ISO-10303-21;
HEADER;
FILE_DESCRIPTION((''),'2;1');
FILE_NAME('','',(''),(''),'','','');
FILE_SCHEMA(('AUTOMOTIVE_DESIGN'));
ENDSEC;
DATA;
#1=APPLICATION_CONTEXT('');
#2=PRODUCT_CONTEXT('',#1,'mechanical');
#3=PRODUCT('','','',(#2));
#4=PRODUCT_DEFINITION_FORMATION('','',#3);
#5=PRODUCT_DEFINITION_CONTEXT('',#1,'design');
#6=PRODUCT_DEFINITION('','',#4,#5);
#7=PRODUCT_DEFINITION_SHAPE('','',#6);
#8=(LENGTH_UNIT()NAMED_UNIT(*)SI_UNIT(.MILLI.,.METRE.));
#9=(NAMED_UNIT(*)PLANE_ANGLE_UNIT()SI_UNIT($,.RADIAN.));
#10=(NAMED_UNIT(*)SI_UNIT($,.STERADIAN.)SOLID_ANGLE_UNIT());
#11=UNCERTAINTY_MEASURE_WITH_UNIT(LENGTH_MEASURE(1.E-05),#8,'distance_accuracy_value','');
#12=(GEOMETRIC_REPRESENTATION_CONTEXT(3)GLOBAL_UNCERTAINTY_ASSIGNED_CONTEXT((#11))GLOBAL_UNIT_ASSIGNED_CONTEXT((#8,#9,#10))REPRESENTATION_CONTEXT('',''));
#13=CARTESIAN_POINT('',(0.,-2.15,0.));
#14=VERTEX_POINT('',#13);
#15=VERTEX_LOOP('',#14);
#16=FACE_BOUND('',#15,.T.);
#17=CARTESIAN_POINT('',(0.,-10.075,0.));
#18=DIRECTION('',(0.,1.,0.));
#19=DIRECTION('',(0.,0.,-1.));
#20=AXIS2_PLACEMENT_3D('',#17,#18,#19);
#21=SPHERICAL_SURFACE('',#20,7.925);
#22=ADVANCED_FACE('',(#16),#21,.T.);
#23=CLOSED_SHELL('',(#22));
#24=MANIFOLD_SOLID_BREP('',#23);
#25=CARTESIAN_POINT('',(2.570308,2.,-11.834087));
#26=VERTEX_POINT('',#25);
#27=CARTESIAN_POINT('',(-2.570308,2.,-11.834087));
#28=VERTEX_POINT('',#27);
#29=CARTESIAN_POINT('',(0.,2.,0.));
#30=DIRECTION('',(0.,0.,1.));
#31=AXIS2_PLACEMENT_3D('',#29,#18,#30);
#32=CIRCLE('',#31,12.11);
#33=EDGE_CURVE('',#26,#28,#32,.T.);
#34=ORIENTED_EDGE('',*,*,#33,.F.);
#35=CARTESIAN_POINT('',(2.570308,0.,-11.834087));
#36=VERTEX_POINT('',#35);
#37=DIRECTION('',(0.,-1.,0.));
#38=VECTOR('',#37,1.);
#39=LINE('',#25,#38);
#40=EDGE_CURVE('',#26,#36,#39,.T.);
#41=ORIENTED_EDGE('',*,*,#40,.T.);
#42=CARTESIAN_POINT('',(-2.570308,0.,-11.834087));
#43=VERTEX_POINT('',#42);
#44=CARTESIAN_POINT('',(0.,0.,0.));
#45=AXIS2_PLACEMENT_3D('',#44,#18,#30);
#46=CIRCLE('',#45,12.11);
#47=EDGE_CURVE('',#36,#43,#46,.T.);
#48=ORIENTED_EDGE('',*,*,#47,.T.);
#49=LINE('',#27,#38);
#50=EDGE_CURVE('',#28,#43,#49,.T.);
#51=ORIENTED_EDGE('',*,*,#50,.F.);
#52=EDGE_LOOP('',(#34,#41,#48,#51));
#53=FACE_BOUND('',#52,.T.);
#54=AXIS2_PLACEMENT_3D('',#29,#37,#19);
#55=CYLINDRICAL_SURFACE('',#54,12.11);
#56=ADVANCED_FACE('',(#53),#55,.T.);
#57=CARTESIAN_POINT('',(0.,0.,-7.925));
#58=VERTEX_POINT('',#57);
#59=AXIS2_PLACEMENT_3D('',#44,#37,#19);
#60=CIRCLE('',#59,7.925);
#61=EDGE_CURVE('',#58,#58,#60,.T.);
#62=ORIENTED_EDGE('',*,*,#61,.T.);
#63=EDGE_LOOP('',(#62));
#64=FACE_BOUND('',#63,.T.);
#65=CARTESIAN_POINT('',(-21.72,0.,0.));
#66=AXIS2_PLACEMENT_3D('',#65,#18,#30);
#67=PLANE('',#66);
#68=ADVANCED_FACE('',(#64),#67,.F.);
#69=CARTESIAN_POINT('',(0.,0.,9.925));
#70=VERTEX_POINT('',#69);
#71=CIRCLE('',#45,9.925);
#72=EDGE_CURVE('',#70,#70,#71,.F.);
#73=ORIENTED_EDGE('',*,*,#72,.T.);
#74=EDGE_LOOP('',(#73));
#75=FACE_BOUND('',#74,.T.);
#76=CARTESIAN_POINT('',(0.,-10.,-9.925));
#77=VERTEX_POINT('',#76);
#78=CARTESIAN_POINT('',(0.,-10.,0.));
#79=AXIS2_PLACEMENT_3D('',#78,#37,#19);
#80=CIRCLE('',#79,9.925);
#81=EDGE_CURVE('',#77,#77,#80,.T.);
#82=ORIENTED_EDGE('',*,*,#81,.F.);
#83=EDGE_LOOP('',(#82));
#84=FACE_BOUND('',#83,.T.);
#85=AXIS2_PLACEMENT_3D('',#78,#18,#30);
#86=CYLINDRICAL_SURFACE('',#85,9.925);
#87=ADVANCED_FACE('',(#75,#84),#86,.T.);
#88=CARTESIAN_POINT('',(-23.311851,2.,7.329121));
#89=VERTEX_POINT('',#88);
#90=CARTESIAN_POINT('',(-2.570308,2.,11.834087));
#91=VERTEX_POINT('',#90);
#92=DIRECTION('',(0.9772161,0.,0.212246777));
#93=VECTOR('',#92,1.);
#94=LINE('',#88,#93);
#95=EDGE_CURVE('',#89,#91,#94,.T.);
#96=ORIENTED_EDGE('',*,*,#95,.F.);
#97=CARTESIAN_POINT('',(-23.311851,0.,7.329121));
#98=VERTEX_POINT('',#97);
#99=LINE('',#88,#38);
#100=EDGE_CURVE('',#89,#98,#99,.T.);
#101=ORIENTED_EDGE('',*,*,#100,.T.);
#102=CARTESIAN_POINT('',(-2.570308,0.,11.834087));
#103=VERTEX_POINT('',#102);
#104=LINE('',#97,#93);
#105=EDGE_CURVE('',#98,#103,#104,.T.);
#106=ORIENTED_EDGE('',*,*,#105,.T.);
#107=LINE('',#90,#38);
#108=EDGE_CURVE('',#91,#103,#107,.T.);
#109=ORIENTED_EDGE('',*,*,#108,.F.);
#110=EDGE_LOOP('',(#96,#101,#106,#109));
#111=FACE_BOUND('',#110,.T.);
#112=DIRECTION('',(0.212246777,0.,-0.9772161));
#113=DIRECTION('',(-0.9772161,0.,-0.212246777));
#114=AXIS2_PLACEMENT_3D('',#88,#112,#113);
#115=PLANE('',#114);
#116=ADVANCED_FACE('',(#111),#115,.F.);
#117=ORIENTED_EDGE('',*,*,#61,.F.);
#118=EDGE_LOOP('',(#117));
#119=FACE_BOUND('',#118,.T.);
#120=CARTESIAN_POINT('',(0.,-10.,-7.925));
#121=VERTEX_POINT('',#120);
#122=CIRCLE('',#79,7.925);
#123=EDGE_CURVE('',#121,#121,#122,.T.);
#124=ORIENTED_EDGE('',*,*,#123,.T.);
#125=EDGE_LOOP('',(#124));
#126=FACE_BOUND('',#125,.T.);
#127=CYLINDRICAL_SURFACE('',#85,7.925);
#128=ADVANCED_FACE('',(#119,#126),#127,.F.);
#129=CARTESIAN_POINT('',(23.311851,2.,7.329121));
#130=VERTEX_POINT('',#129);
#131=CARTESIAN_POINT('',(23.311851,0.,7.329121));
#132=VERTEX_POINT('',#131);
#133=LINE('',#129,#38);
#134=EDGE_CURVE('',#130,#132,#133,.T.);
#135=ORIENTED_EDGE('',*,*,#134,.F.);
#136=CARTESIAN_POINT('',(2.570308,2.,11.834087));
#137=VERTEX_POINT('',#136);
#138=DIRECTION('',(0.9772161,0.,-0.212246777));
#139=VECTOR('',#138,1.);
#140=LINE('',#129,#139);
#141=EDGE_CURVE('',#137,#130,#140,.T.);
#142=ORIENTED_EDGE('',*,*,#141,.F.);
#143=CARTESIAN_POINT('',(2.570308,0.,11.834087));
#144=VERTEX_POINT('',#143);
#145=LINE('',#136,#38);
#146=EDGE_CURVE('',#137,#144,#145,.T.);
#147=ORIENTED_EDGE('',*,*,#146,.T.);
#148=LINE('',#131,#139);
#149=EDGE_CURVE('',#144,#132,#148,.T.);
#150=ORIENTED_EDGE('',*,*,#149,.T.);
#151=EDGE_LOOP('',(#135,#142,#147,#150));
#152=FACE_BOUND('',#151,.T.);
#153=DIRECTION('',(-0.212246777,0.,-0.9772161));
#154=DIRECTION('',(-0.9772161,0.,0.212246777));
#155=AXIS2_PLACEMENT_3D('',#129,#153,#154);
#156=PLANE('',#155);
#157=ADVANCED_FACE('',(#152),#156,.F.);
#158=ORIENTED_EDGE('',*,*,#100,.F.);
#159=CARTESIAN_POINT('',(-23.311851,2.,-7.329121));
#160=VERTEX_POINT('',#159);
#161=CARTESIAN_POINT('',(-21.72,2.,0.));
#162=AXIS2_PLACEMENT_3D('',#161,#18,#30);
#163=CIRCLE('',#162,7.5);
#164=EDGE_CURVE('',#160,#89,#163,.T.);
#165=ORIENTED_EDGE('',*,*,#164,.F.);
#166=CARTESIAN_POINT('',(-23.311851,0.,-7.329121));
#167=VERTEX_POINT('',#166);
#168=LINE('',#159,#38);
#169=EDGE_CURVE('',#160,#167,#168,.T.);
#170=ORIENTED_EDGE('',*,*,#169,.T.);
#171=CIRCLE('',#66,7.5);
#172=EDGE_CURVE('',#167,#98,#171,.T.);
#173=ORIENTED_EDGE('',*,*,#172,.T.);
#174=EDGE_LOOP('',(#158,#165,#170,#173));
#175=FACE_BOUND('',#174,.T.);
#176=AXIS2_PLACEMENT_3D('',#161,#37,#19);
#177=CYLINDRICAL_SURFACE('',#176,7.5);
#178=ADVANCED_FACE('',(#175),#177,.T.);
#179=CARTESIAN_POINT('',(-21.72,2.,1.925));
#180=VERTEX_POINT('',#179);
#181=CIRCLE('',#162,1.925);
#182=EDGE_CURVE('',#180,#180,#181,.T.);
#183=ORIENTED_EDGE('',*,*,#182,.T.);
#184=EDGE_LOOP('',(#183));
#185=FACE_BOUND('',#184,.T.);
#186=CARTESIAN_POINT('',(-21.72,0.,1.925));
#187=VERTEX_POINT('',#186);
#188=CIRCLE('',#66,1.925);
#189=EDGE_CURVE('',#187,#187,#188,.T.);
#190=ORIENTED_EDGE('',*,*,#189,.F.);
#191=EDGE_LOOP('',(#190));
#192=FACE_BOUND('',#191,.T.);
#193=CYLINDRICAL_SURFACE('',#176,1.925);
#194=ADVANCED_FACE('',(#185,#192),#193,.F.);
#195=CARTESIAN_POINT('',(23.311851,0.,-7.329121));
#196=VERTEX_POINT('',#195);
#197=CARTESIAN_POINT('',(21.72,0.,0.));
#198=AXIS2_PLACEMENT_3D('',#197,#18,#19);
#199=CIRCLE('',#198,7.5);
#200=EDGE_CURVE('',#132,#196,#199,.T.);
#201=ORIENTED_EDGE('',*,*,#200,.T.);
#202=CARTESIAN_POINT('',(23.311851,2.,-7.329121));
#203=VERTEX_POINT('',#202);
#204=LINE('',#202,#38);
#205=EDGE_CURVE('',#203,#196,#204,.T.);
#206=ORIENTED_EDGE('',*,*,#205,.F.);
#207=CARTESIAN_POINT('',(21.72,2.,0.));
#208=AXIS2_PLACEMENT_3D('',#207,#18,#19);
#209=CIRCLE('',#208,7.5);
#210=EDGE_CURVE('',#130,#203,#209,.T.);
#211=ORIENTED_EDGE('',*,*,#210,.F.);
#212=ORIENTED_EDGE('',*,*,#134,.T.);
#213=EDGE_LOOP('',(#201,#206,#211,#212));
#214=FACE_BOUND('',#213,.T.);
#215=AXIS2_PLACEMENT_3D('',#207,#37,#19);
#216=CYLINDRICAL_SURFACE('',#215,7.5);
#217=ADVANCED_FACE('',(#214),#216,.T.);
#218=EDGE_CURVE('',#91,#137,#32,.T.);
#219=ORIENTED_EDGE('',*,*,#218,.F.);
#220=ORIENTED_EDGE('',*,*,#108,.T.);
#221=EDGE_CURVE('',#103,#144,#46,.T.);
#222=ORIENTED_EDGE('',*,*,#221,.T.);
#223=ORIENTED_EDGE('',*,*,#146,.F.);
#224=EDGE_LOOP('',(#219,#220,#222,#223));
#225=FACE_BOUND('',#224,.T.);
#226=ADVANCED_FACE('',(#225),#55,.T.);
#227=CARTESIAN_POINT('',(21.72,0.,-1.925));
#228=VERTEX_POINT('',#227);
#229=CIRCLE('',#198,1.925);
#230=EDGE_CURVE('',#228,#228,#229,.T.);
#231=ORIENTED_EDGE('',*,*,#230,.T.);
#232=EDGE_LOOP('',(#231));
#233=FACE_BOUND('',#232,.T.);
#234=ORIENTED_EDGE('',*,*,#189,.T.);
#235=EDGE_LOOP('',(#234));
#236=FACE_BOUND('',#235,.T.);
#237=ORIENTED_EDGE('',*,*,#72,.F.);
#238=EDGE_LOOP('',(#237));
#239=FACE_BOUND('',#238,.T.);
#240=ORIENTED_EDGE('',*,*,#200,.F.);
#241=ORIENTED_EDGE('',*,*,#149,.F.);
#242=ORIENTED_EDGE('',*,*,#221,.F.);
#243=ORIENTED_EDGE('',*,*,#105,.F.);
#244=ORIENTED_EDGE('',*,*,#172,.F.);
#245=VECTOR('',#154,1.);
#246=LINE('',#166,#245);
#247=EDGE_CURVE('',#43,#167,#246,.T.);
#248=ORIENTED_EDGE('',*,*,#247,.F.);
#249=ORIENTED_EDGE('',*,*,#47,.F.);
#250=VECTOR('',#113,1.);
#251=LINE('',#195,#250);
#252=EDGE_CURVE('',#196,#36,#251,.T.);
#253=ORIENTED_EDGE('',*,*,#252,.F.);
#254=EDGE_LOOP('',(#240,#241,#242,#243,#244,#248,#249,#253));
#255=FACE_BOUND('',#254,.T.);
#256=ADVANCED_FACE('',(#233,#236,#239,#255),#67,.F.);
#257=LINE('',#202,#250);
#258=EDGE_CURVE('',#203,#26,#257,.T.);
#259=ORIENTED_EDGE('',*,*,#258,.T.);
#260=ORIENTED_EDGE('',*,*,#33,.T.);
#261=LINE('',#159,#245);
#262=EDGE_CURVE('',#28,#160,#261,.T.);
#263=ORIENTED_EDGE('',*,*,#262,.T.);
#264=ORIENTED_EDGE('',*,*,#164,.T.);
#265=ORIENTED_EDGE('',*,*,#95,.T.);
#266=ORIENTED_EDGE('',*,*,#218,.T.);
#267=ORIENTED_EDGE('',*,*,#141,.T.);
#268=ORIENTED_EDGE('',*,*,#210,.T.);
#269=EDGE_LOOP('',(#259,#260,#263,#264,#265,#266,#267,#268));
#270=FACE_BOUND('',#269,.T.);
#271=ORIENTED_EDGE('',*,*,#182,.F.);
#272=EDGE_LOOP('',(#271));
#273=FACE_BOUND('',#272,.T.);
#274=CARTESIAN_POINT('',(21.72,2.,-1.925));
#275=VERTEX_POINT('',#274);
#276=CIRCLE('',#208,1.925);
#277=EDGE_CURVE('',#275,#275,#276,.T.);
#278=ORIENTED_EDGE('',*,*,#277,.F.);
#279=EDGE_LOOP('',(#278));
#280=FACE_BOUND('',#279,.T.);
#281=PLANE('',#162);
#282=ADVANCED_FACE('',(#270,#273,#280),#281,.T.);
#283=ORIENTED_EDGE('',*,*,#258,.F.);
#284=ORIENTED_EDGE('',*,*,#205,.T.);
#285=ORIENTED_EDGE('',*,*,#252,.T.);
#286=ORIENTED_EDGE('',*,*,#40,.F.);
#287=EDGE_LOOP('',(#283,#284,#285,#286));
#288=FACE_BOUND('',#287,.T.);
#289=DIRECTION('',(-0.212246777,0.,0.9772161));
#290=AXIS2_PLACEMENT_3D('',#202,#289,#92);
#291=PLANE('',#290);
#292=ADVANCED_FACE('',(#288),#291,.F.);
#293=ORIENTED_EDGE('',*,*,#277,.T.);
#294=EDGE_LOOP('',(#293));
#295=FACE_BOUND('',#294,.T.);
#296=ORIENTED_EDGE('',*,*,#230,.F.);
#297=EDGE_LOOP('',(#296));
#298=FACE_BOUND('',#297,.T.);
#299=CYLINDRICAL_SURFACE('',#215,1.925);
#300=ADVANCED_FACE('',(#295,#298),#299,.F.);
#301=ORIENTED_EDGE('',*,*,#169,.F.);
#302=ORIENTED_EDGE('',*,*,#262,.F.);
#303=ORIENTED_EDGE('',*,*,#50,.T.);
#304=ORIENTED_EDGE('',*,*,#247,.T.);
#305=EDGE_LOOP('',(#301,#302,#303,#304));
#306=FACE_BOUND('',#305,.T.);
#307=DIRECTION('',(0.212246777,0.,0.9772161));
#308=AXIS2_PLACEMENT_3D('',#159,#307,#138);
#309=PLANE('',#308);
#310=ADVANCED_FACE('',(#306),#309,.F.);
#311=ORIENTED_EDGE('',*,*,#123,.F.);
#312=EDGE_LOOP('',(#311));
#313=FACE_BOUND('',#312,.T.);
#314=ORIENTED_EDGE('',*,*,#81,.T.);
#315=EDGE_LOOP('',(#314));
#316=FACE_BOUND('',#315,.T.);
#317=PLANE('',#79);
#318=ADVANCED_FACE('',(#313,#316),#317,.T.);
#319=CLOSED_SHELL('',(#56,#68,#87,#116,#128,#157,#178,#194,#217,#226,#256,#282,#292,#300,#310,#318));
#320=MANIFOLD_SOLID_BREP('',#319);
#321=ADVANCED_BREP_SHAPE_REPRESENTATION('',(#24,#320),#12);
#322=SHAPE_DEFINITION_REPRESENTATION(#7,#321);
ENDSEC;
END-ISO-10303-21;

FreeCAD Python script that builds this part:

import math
import FreeCAD as App
import Part
import Sketcher

V = App.Vector

doc = App.newDocument("Part")
body = doc.addObject("PartDesign::Body", "Body")

sketch1 = body.newObject("Sketcher::SketchObject", "Sketch")
sketch1.AttachmentSupport = (doc.getObject("XZ_Plane"), [""])
sketch1.MapMode = "FlatFace"
sketch1.addGeometry([
    Part.LineSegment(V(-2.570308, -11.834087, 0), V(-23.311851, -7.329121, 0)),
    Part.ArcOfCircle(Part.Circle(V(-21.72, 0, 0), V(0, 0, 1), 7.5), math.radians(102.254052), math.radians(257.745948)),
    Part.LineSegment(V(-23.311851, 7.329121, 0), V(-2.570308, 11.834087, 0)),
    Part.ArcOfCircle(Part.Circle(V(0, 0, 0), V(0, 0, 1), 12.11), math.radians(77.745948), math.radians(102.254052)),
    Part.LineSegment(V(2.570308, 11.834087, 0), V(23.311851, 7.329121, 0)),
    Part.ArcOfCircle(Part.Circle(V(21.72, 0, 0), V(0, 0, 1), 7.5), math.radians(-77.745948), math.radians(77.745948)),
    Part.LineSegment(V(23.311851, -7.329121, 0), V(2.570308, -11.834087, 0)),
    Part.ArcOfCircle(Part.Circle(V(0, 0, 0), V(0, 0, 1), 12.11), math.radians(-102.254052), math.radians(-77.745948)),
    Part.Circle(V(21.72, 0, 0), V(0, 0, 1), 1.925),
    Part.Circle(V(-21.72, 0, 0), V(0, 0, 1), 1.925),
], False)
sketch1.addConstraint([
    Sketcher.Constraint("Tangent", 0, 2, 1, 2),
    Sketcher.Constraint("Tangent", 1, 1, 2, 1),
    Sketcher.Constraint("Tangent", 2, 2, 3, 2),
    Sketcher.Constraint("Tangent", 3, 1, 4, 1),
    Sketcher.Constraint("Tangent", 4, 2, 5, 2),
    Sketcher.Constraint("Tangent", 5, 1, 6, 1),
    Sketcher.Constraint("Tangent", 6, 2, 7, 2),
    Sketcher.Constraint("Tangent", 7, 1, 0, 1),
    Sketcher.Constraint("Coincident", 3, 3, -1, 1),
    Sketcher.Constraint("Coincident", 7, 3, -1, 1),
    Sketcher.Constraint("Coincident", 8, 3, 5, 3),
    Sketcher.Constraint("Coincident", 9, 3, 1, 3),
    Sketcher.Constraint("Equal", 1, 5),
    Sketcher.Constraint("Equal", 3, 7),
    Sketcher.Constraint("Equal", 8, 9),
    Sketcher.Constraint("Symmetric", 1, 3, 5, 3, -1, 1),
    Sketcher.Constraint("PointOnObject", 1, 3, -1),
    Sketcher.Constraint("Radius", 1, 7.5),
    Sketcher.Constraint("Diameter", 8, 3.85),
    Sketcher.Constraint("Radius", 3, 12.11),
    Sketcher.Constraint("DistanceX", 1, 3, -1, 1, 21.72),
])
pad1 = body.newObject("PartDesign::Pad", "Pad")
pad1.Profile = sketch1
pad1.Length = 2
pad1.Reversed = True

sketch2 = body.newObject("Sketcher::SketchObject", "Sketch001")
sketch2.AttachmentSupport = (doc.getObject("XZ_Plane"), [""])
sketch2.MapMode = "FlatFace"
sketch2.addGeometry([
    Part.Circle(V(0, 0, 0), V(0, 0, 1), 9.925),
    Part.Circle(V(0, 0, 0), V(0, 0, 1), 7.925),
], False)
sketch2.addConstraint([
    Sketcher.Constraint("Coincident", 0, 3, -1, 1),
    Sketcher.Constraint("Coincident", 1, 3, -1, 1),
    Sketcher.Constraint("Diameter", 0, 19.85),
    Sketcher.Constraint("Diameter", 1, 15.85),
])
pad2 = body.newObject("PartDesign::Pad", "Pad001")
pad2.Profile = sketch2
pad2.Length = 10
body2 = doc.addObject("PartDesign::Body", "Body001")

sketch3 = body2.newObject("Sketcher::SketchObject", "Sketch002")
sketch3.AttachmentSupport = (doc.getObject("YZ_Plane001"), [""])
sketch3.MapMode = "FlatFace"
sketch3.addGeometry([
    Part.LineSegment(V(-2.15, 0, 0), V(-18, 0, 0)),
    Part.ArcOfCircle(Part.Circle(V(-10.075, 0, 0), V(0, 0, 1), 7.925), math.radians(180), math.radians(360)),
], False)
sketch3.addConstraint([
    Sketcher.Constraint("Coincident", 0, 1, 1, 2),
    Sketcher.Constraint("Coincident", 1, 1, 0, 2),
    Sketcher.Constraint("Horizontal", 0),
    Sketcher.Constraint("PointOnObject", 1, 3, -1),
    Sketcher.Constraint("PointOnObject", 0, 1, -1),
    Sketcher.Constraint("DistanceX", 1, 1, -1, 1, 18.0),
    Sketcher.Constraint("Radius", 1, 7.925),
])
revolution = body2.newObject("PartDesign::Revolution", "Revolution")
revolution.Profile = sketch3
revolution.ReferenceAxis = (sketch3, ["H_Axis"])
revolution.Angle = 360

doc.recompute()
